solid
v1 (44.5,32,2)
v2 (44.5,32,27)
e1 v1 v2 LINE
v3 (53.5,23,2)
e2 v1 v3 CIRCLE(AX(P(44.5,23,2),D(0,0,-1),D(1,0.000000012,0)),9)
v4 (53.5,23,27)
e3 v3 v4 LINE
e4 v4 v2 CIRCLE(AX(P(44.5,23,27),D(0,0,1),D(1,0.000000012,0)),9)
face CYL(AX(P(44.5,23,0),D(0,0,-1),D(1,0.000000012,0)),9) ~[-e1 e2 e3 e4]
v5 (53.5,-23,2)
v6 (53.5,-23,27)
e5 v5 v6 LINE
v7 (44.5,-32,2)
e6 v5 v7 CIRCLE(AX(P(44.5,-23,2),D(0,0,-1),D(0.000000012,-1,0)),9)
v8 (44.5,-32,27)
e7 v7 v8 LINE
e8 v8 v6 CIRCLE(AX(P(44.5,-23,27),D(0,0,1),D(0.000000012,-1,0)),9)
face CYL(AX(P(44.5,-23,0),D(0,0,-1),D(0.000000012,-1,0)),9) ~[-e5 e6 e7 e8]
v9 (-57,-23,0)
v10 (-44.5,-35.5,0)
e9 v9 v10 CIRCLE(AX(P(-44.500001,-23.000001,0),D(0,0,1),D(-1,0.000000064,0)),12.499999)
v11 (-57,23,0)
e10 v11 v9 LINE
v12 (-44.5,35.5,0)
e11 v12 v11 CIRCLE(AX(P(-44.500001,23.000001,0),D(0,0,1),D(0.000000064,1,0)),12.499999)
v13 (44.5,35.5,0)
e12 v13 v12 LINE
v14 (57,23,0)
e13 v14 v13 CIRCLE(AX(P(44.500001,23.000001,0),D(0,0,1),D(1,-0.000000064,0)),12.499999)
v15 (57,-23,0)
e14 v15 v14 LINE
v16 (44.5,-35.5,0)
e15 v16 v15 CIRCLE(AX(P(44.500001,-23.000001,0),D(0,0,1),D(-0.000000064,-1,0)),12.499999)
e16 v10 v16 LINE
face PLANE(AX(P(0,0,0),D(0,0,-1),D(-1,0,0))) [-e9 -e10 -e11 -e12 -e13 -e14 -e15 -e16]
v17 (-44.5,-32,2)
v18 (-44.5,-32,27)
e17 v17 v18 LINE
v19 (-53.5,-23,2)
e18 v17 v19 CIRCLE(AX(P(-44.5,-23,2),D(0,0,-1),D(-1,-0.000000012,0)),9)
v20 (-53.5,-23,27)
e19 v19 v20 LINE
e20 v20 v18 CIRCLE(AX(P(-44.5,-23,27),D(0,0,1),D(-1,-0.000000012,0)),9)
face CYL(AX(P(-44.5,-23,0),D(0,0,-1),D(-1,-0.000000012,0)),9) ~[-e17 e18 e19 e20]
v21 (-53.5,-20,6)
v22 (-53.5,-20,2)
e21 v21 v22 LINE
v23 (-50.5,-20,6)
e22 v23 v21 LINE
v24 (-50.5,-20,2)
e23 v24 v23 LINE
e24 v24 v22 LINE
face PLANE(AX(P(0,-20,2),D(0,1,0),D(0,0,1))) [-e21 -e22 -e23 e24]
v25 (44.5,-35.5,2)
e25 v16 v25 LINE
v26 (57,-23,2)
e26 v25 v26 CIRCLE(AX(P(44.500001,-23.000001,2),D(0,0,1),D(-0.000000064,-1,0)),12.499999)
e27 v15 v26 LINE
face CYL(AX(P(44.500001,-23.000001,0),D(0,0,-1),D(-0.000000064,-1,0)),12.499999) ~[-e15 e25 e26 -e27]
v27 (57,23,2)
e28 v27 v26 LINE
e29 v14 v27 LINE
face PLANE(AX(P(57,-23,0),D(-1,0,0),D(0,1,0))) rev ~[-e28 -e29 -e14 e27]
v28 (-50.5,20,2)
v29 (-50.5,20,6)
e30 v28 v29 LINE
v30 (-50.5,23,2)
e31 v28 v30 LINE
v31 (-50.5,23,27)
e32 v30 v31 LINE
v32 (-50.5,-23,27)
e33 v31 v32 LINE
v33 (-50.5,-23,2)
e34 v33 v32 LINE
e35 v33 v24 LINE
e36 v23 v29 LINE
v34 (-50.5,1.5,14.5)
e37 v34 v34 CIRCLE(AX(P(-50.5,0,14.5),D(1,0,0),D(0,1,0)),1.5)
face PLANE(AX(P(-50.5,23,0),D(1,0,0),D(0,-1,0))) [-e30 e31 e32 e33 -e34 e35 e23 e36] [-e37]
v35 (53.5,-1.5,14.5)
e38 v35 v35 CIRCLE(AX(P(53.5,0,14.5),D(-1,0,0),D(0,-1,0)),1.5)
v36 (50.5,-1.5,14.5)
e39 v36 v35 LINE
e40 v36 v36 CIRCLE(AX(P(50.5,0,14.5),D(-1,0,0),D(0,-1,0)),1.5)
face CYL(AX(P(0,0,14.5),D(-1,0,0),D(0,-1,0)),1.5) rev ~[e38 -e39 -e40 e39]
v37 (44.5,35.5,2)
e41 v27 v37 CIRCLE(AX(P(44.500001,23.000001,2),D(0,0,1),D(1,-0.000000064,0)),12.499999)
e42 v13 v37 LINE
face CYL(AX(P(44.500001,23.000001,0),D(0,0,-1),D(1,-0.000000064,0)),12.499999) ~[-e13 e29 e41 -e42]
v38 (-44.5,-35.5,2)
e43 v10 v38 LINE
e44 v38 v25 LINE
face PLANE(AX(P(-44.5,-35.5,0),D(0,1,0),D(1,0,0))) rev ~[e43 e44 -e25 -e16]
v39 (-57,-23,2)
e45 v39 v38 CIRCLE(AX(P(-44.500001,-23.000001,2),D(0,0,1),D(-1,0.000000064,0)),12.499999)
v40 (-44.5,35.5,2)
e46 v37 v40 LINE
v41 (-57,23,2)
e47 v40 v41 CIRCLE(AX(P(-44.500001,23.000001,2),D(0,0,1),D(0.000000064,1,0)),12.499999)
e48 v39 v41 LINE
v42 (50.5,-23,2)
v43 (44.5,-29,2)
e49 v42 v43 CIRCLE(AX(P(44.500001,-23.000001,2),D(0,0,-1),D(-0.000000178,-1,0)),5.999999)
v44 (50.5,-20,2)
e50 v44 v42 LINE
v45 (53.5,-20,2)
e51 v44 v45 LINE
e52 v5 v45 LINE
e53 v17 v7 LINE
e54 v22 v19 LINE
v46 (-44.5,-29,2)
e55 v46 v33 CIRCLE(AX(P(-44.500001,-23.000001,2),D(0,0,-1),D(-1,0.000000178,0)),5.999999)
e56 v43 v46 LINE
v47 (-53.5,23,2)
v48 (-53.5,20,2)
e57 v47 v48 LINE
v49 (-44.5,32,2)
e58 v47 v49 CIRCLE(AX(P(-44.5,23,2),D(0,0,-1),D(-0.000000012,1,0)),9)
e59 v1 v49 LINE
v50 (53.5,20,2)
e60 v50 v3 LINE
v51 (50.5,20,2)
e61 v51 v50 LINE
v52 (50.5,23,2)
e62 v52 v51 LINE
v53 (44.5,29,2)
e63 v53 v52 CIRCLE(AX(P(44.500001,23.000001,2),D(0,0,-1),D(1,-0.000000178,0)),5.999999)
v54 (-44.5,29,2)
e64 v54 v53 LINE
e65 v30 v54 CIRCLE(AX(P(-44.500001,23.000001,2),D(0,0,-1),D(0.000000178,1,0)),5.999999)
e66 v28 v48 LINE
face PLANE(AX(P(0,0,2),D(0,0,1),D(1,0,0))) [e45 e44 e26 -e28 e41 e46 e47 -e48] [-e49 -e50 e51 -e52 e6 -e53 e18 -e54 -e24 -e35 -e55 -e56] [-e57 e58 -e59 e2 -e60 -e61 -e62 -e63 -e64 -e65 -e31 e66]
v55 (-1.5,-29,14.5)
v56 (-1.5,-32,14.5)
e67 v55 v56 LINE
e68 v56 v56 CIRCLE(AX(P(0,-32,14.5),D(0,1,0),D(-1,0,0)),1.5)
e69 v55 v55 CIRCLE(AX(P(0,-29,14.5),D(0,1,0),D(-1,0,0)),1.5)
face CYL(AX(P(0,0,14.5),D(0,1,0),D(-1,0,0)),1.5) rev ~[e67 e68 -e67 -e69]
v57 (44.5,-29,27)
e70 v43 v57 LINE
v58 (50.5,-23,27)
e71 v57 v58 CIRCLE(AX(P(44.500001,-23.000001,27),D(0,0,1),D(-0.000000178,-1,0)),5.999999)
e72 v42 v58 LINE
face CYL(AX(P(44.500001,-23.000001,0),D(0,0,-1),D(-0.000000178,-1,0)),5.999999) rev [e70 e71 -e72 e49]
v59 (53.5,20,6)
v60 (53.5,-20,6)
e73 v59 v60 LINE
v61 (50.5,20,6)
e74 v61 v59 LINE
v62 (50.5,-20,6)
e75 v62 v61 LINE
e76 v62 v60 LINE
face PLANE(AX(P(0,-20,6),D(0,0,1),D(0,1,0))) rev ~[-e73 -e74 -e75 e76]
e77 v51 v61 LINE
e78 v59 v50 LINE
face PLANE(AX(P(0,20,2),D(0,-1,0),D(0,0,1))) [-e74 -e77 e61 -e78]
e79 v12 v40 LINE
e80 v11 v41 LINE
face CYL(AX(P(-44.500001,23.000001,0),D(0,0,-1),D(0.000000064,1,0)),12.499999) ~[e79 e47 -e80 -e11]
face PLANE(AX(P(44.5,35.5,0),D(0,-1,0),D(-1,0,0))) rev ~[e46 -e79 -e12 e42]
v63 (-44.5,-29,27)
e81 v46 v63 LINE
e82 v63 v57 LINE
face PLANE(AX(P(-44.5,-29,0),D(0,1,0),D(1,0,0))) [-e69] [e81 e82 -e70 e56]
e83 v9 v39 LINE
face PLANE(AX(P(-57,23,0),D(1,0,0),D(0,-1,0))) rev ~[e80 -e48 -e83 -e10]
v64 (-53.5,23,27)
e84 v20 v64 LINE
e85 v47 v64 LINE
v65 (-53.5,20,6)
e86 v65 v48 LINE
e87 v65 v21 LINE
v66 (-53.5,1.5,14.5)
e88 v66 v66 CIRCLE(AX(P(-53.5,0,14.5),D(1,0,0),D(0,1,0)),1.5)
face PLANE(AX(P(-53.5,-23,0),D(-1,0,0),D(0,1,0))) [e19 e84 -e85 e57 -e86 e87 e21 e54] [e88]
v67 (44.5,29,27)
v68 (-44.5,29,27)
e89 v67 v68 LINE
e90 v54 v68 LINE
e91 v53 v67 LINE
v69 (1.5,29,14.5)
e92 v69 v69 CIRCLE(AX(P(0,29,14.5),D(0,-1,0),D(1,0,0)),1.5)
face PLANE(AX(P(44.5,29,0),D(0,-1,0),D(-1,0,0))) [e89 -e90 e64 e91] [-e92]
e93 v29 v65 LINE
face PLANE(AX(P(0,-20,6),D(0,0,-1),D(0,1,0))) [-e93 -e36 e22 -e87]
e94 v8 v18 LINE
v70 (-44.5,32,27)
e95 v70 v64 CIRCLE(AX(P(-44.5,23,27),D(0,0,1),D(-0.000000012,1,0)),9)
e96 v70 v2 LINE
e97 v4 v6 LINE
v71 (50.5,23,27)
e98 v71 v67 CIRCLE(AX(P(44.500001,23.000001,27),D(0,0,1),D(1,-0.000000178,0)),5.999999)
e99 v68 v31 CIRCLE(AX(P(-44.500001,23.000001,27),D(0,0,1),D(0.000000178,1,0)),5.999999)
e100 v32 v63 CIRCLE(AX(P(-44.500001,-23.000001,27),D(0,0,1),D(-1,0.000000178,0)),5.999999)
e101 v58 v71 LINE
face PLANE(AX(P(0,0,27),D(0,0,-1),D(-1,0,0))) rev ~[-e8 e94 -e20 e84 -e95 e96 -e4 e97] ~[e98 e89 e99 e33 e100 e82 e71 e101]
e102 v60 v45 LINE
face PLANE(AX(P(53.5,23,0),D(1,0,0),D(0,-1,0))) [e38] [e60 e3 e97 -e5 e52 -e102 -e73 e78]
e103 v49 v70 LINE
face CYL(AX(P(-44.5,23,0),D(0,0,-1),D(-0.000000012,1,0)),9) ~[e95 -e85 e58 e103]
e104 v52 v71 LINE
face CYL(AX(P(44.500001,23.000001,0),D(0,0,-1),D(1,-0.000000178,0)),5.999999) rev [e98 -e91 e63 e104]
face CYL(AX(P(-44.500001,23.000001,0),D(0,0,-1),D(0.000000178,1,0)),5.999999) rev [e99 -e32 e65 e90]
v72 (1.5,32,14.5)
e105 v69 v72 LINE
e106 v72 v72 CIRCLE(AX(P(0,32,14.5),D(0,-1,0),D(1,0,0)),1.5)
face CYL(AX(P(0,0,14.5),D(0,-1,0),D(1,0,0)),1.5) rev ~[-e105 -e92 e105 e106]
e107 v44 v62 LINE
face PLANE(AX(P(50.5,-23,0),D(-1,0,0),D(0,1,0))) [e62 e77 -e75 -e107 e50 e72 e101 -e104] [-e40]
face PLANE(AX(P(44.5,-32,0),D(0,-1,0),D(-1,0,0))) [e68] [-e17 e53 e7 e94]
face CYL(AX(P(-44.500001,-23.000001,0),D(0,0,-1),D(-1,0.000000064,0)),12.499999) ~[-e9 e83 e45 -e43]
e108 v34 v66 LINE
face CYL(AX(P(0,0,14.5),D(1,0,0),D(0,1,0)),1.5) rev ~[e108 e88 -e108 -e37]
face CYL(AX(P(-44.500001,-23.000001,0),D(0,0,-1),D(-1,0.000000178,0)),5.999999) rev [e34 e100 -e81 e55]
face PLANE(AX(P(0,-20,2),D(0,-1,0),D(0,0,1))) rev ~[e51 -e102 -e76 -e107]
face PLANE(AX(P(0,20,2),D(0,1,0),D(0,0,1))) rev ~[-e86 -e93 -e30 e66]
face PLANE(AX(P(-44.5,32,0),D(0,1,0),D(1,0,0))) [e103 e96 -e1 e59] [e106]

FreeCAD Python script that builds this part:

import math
import FreeCAD as App
import Part
import Sketcher
Q = App.Units.Quantity

doc = App.newDocument("Part")
body = doc.addObject("PartDesign::Body", "Body")

sketch1 = doc.addObject("Sketcher::SketchObject", "Sketch")
body.addObject(sketch1)
sketch1.AttachmentSupport = (doc.XY_Plane, [""])
sketch1.MapMode = "FlatFace"
sketch1.addGeometry([
    Part.LineSegment(App.Vector(-57, 23, 0), App.Vector(-57, -23, 0)),
    Part.ArcOfCircle(Part.Circle(App.Vector(-45, -23, 0), App.Vector(0, 0, 1), 12), math.radians(180), math.radians(270)),
    Part.LineSegment(App.Vector(-44, -36, 0), App.Vector(44, -36, 0)),
    Part.ArcOfCircle(Part.Circle(App.Vector(45, -23, 0), App.Vector(0, 0, 1), 12), math.radians(-90), math.radians(0)),
    Part.LineSegment(App.Vector(57, -23, 0), App.Vector(57, 23, 0)),
    Part.ArcOfCircle(Part.Circle(App.Vector(45, 23, 0), App.Vector(0, 0, 1), 12), math.radians(0), math.radians(90)),
    Part.LineSegment(App.Vector(44, 36, 0), App.Vector(-44, 36, 0)),
    Part.ArcOfCircle(Part.Circle(App.Vector(-45, 23, 0), App.Vector(0, 0, 1), 12), math.radians(90), math.radians(180)),
], False)
sketch1.addConstraint([
    Sketcher.Constraint("Tangent", 0, 2, 1, 1),
    Sketcher.Constraint("Tangent", 1, 2, 2, 1),
    Sketcher.Constraint("Tangent", 2, 2, 3, 1),
    Sketcher.Constraint("Tangent", 3, 2, 4, 1),
    Sketcher.Constraint("Tangent", 4, 2, 5, 1),
    Sketcher.Constraint("Tangent", 5, 2, 6, 1),
    Sketcher.Constraint("Tangent", 6, 2, 7, 1),
    Sketcher.Constraint("Tangent", 7, 2, 0, 1),
    Sketcher.Constraint("Vertical", 0),
    Sketcher.Constraint("Horizontal", 2),
    Sketcher.Constraint("Vertical", 4),
    Sketcher.Constraint("Horizontal", 6),
    Sketcher.Constraint("Equal", 1, 3),
    Sketcher.Constraint("Equal", 3, 5),
    Sketcher.Constraint("Equal", 5, 7),
    Sketcher.Constraint("Symmetric", 1, 3, 5, 3, -1, 1),
    Sketcher.Constraint("Radius", 1, Q("12.499999 mm")),
    Sketcher.Constraint("DistanceX", 2, 1, 2, 2, Q("89 mm")),
    Sketcher.Constraint("DistanceY", 0, 2, 0, 1, Q("46 mm")),
])
pad1 = doc.addObject("PartDesign::Pad", "Pad")
body.addObject(pad1)
pad1.Profile = sketch1
pad1.Length = 2

sketch2 = doc.addObject("Sketcher::SketchObject", "Sketch001")
body.addObject(sketch2)
sketch2.AttachmentSupport = (doc.XY_Plane, [""])
sketch2.MapMode = "FlatFace"
sketch2.addGeometry([
    Part.LineSegment(App.Vector(44, 32, 0), App.Vector(-44, 32, 0)),
    Part.ArcOfCircle(Part.Circle(App.Vector(-44, 23, 0), App.Vector(0, 0, 1), 9), math.radians(90), math.radians(180)),
    Part.LineSegment(App.Vector(-54, 23, 0), App.Vector(-54, -23, 0)),
    Part.ArcOfCircle(Part.Circle(App.Vector(-44, -23, 0), App.Vector(0, 0, 1), 9), math.radians(-180), math.radians(-90)),
    Part.LineSegment(App.Vector(-44, -32, 0), App.Vector(44, -32, 0)),
    Part.ArcOfCircle(Part.Circle(App.Vector(44, -23, 0), App.Vector(0, 0, 1), 9), math.radians(-90), math.radians(0)),
    Part.LineSegment(App.Vector(54, -23, 0), App.Vector(54, 23, 0)),
    Part.ArcOfCircle(Part.Circle(App.Vector(44, 23, 0), App.Vector(0, 0, 1), 9), math.radians(0), math.radians(90)),
    Part.ArcOfCircle(Part.Circle(App.Vector(-45, 23, 0), App.Vector(0, 0, 1), 6), math.radians(90), math.radians(180)),
    Part.LineSegment(App.Vector(-44, 29, 0), App.Vector(44, 29, 0)),
    Part.ArcOfCircle(Part.Circle(App.Vector(45, 23, 0), App.Vector(0, 0, 1), 6), math.radians(0), math.radians(90)),
    Part.LineSegment(App.Vector(50, 23, 0), App.Vector(50, -23, 0)),
    Part.ArcOfCircle(Part.Circle(App.Vector(45, -23, 0), App.Vector(0, 0, 1), 6), math.radians(-90), math.radians(0)),
    Part.LineSegment(App.Vector(44, -29, 0), App.Vector(-44, -29, 0)),
    Part.ArcOfCircle(Part.Circle(App.Vector(-45, -23, 0), App.Vector(0, 0, 1), 6), math.radians(180), math.radians(270)),
    Part.LineSegment(App.Vector(-50, -23, 0), App.Vector(-50, 23, 0)),
], False)
sketch2.addConstraint([
    Sketcher.Constraint("Tangent", 0, 2, 1, 1),
    Sketcher.Constraint("Tangent", 1, 2, 2, 1),
    Sketcher.Constraint("Tangent", 2, 2, 3, 1),
    Sketcher.Constraint("Tangent", 3, 2, 4, 1),
    Sketcher.Constraint("Tangent", 4, 2, 5, 1),
    Sketcher.Constraint("Tangent", 5, 2, 6, 1),
    Sketcher.Constraint("Tangent", 6, 2, 7, 1),
    Sketcher.Constraint("Tangent", 7, 2, 0, 1),
    Sketcher.Constraint("Tangent", 8, 1, 9, 1),
    Sketcher.Constraint("Tangent", 9, 2, 10, 2),
    Sketcher.Constraint("Tangent", 10, 1, 11, 1),
    Sketcher.Constraint("Tangent", 11, 2, 12, 2),
    Sketcher.Constraint("Tangent", 12, 1, 13, 1),
    Sketcher.Constraint("Tangent", 13, 2, 14, 2),
    Sketcher.Constraint("Tangent", 14, 1, 15, 1),
    Sketcher.Constraint("Tangent", 15, 2, 8, 2),
    Sketcher.Constraint("Horizontal", 0),
    Sketcher.Constraint("Vertical", 2),
    Sketcher.Constraint("Horizontal", 4),
    Sketcher.Constraint("Vertical", 6),
    Sketcher.Constraint("Horizontal", 9),
    Sketcher.Constraint("Vertical", 11),
    Sketcher.Constraint("Horizontal", 13),
    Sketcher.Constraint("Vertical", 15),
    Sketcher.Constraint("Coincident", 8, 3, 1, 3),
    Sketcher.Constraint("Coincident", 10, 3, 7, 3),
    Sketcher.Constraint("Coincident", 12, 3, 5, 3),
    Sketcher.Constraint("Equal", 1, 3),
    Sketcher.Constraint("Equal", 3, 5),
    Sketcher.Constraint("Equal", 5, 7),
    Sketcher.Constraint("Equal", 12, 14),
    Sketcher.Constraint("Symmetric", 1, 3, 5, 3, -1, 1),
    Sketcher.Constraint("Radius", 1, Q("9 mm")),
    Sketcher.Constraint("Radius", 8, Q("5.999999 mm")),
    Sketcher.Constraint("DistanceX", 0, 2, 0, 1, Q("89 mm")),
    Sketcher.Constraint("DistanceY", 2, 2, 2, 1, Q("46 mm")),
])
pad2 = doc.addObject("PartDesign::Pad", "Pad001")
body.addObject(pad2)
pad2.Profile = sketch2
pad2.Length = 27

sketch3 = doc.addObject("Sketcher::SketchObject", "Sketch002")
body.addObject(sketch3)
sketch3.AttachmentSupport = (doc.XZ_Plane, [""])
sketch3.MapMode = "FlatFace"
sketch3.addGeometry(Part.Circle(App.Vector(0, 14.5, 0), App.Vector(0, 0, 1), 1.5), False)
sketch3.addConstraint([
    Sketcher.Constraint("PointOnObject", 0, 3, -2),
    Sketcher.Constraint("Diameter", 0, Q("3 mm")),
    Sketcher.Constraint("DistanceY", -1, 1, 0, 3, Q("14.5 mm")),
])
pocket1 = doc.addObject("PartDesign::Pocket", "Pocket")
body.addObject(pocket1)
pocket1.Profile = sketch3
pocket1.Type = "ThroughAll"

sketch4 = doc.addObject("Sketcher::SketchObject", "Sketch003")
body.addObject(sketch4)
sketch4.AttachmentSupport = (doc.YZ_Plane, [""])
sketch4.MapMode = "FlatFace"
sketch4.addGeometry([
    Part.LineSegment(App.Vector(-20, 6, 0), App.Vector(-20, 2, 0)),
    Part.LineSegment(App.Vector(-20, 2, 0), App.Vector(20, 2, 0)),
    Part.LineSegment(App.Vector(20, 2, 0), App.Vector(20, 6, 0)),
    Part.LineSegment(App.Vector(20, 6, 0), App.Vector(-20, 6, 0)),
], False)
sketch4.addConstraint([
    Sketcher.Constraint("Coincident", 0, 2, 1, 1),
    Sketcher.Constraint("Coincident", 1, 2, 2, 1),
    Sketcher.Constraint("Coincident", 2, 2, 3, 1),
    Sketcher.Constraint("Coincident", 3, 2, 0, 1),
    Sketcher.Constraint("Vertical", 0),
    Sketcher.Constraint("Horizontal", 1),
    Sketcher.Constraint("Vertical", 2),
    Sketcher.Constraint("Horizontal", 3),
    Sketcher.Constraint("DistanceX", 1, 1, 1, 2, Q("40 mm")),
    Sketcher.Constraint("DistanceY", 0, 2, 0, 1, Q("4 mm")),
    Sketcher.Constraint("DistanceX", 0, 2, -1, 1, Q("20 mm")),
    Sketcher.Constraint("DistanceY", -1, 1, 0, 2, Q("2 mm")),
])
pocket2 = doc.addObject("PartDesign::Pocket", "Pocket001")
body.addObject(pocket2)
pocket2.Profile = sketch4
pocket2.Type = "ThroughAll"
pocket2.Midplane = True
doc.recompute()

polarpattern = doc.addObject("PartDesign::PolarPattern", "PolarPattern")
body.addObject(polarpattern)
polarpattern.Originals = [pocket1]
polarpattern.Axis = (doc.Z_Axis, [""])
polarpattern.Angle = 360
polarpattern.Occurrences = 4
body.Tip = polarpattern

doc.recompute()
